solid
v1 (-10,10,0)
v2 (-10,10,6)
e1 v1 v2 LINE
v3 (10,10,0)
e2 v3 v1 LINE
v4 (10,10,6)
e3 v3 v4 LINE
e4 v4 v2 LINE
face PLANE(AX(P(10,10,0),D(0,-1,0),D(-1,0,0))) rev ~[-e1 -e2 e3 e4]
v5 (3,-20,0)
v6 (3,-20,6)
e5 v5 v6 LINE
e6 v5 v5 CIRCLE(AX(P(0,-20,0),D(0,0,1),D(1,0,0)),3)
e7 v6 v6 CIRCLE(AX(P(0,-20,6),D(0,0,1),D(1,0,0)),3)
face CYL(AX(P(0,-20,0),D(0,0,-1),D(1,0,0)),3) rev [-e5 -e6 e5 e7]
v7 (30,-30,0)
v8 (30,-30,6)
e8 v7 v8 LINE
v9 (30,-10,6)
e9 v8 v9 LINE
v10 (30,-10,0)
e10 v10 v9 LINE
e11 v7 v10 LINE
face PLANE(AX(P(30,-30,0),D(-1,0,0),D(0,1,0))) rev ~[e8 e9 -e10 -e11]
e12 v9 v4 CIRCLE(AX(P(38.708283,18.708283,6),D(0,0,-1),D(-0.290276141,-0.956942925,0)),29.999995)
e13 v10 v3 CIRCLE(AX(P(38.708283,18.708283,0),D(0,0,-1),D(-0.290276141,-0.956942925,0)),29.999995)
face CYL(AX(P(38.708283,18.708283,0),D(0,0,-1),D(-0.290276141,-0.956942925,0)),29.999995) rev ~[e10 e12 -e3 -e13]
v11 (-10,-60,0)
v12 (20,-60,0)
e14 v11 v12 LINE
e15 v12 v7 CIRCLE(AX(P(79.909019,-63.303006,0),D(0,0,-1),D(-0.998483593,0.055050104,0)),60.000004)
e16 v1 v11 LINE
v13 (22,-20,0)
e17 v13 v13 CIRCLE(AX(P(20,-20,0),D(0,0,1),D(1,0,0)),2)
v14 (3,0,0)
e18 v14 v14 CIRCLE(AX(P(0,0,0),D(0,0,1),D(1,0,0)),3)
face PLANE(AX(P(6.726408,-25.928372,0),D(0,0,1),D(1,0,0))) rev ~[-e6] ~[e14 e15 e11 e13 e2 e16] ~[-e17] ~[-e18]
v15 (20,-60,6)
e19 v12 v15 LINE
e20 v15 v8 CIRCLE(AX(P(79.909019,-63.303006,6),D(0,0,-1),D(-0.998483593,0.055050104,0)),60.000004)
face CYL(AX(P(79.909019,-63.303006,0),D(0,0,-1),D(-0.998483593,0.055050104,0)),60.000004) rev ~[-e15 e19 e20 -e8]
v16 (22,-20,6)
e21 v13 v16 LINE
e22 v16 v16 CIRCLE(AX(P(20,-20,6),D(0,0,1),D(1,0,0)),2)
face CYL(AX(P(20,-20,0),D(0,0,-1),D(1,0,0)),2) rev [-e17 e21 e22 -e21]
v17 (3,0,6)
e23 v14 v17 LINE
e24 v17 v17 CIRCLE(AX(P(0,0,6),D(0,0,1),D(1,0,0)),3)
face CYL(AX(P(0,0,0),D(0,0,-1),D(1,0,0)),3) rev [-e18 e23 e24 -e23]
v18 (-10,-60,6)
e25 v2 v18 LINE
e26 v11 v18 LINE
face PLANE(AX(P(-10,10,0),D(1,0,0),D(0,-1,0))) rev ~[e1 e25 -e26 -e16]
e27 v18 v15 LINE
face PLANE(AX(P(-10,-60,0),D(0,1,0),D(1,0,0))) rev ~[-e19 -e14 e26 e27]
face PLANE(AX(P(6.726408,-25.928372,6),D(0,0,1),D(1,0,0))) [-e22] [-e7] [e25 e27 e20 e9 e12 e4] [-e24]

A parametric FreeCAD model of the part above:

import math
import FreeCAD as App
import Part
import Sketcher
from FreeCAD import Vector
Q = App.Units.Quantity

doc = App.newDocument("Part")
params = doc.addObject("Spreadsheet::Sheet", "Params")
for row, (alias, value) in enumerate([
    ("sketch1_diameter", "6 mm"),
    ("sketch1_diameter2", "4 mm"),
    ("sketch1_width", "20 mm"),
    ("sketch1_width2", "30 mm"),
    ("sketch1_height", "70 mm"),
    ("pad1_length", "6 mm"),
], start=1):
    params.set(f"A{row}", alias)
    params.set(f"B{row}", "=" + value)
    params.setAlias(f"B{row}", alias)

body = doc.addObject("PartDesign::Body", "Body")

sketch1 = doc.addObject("Sketcher::SketchObject", "Sketch")
body.addObject(sketch1)
sketch1.AttachmentSupport = (doc.XY_Plane, [""])
sketch1.MapMode = "FlatFace"
sketch1.addGeometry(Part.ArcOfCircle(Part.Circle(Vector(38.708283, 18.708283, 0), Vector(0, 0, 1), 29.999995), math.radians(-163.125511), math.radians(-106.874489)), False)
sketch1.addGeometry(Part.LineSegment(Vector(10, 10, 0), Vector(-10, 10, 0)), False)
sketch1.addGeometry(Part.LineSegment(Vector(-10, 10, 0), Vector(-10, -60, 0)), False)
sketch1.addGeometry(Part.LineSegment(Vector(-10, -60, 0), Vector(20, -60, 0)), False)
sketch1.addGeometry(Part.ArcOfCircle(Part.Circle(Vector(79.909019, -63.303006, 0), Vector(0, 0, 1), 60.000004), math.radians(146.285836), math.radians(176.844266)), False)
sketch1.addGeometry(Part.LineSegment(Vector(30, -30, 0), Vector(30, -10, 0)), False)
sketch1.addGeometry(Part.Circle(Vector(0, -20, 0), Vector(0, 0, 1), 3), False)
sketch1.addGeometry(Part.Circle(Vector(20, -20, 0), Vector(0, 0, 1), 2), False)
sketch1.addGeometry(Part.Circle(Vector(0, 0, 0), Vector(0, 0, 1), 3), False)
sketch1.addConstraint(Sketcher.Constraint("Coincident", 0, 1, 1, 1))
sketch1.addConstraint(Sketcher.Constraint("Coincident", 1, 2, 2, 1))
sketch1.addConstraint(Sketcher.Constraint("Coincident", 2, 2, 3, 1))
sketch1.addConstraint(Sketcher.Constraint("Coincident", 3, 2, 4, 2))
sketch1.addConstraint(Sketcher.Constraint("Coincident", 4, 1, 5, 1))
sketch1.addConstraint(Sketcher.Constraint("Coincident", 5, 2, 0, 2))
sketch1.addConstraint(Sketcher.Constraint("Horizontal", 1))
sketch1.addConstraint(Sketcher.Constraint("Vertical", 2))
sketch1.addConstraint(Sketcher.Constraint("Horizontal", 3))
sketch1.addConstraint(Sketcher.Constraint("Vertical", 5))
sketch1.addConstraint(Sketcher.Constraint("Coincident", 8, 3, -1, 1))
sketch1.addConstraint(Sketcher.Constraint("Equal", 6, 8))
sketch1.addConstraint(Sketcher.Constraint("PointOnObject", 6, 3, -2))
sketch1.addConstraint(Sketcher.Constraint("Horizontal", 6, 3, 7, 3))
sketch1.addConstraint(Sketcher.Constraint("Vertical", 7, 3, 3, 2))
sketch1.addConstraint(Sketcher.Constraint("Equal", 1, 5))
sketch1.addConstraint(Sketcher.Constraint("Diameter", 6, Q("6 mm")))
sketch1.addConstraint(Sketcher.Constraint("Diameter", 7, Q("4 mm")))
sketch1.addConstraint(Sketcher.Constraint("DistanceX", 1, 2, 1, 1, Q("20 mm")))
sketch1.addConstraint(Sketcher.Constraint("DistanceX", 3, 1, 3, 2, Q("30 mm")))
sketch1.addConstraint(Sketcher.Constraint("DistanceY", 2, 2, 2, 1, Q("70 mm")))
sketch1.addConstraint(Sketcher.Constraint("DistanceY", 6, 3, -1, 1, Q("20 mm")))
sketch1.addConstraint(Sketcher.Constraint("DistanceX", -1, 1, 7, 3, Q("20 mm")))
sketch1.addConstraint(Sketcher.Constraint("DistanceY", -1, 1, 0, 1, Q("10 mm")))
sketch1.addConstraint(Sketcher.Constraint("DistanceX", -1, 1, 4, 1, Q("30 mm")))
sketch1.addConstraint(Sketcher.Constraint("DistanceY", 4, 1, -1, 1, Q("30 mm")))
sketch1.addConstraint(Sketcher.Constraint("Radius", 0, Q("29.999995 mm")))
sketch1.addConstraint(Sketcher.Constraint("Radius", 4, Q("60.000004 mm")))
sketch1.setExpression("Constraints[16]", "Params.sketch1_diameter")
sketch1.setExpression("Constraints[17]", "Params.sketch1_diameter2")
sketch1.setExpression("Constraints[18]", "Params.sketch1_width")
sketch1.setExpression("Constraints[19]", "Params.sketch1_width2")
sketch1.setExpression("Constraints[20]", "Params.sketch1_height")
pad1 = doc.addObject("PartDesign::Pad", "Pad")
body.addObject(pad1)
pad1.Profile = sketch1
pad1.setExpression("Length", "Params.pad1_length")

doc.recompute()
